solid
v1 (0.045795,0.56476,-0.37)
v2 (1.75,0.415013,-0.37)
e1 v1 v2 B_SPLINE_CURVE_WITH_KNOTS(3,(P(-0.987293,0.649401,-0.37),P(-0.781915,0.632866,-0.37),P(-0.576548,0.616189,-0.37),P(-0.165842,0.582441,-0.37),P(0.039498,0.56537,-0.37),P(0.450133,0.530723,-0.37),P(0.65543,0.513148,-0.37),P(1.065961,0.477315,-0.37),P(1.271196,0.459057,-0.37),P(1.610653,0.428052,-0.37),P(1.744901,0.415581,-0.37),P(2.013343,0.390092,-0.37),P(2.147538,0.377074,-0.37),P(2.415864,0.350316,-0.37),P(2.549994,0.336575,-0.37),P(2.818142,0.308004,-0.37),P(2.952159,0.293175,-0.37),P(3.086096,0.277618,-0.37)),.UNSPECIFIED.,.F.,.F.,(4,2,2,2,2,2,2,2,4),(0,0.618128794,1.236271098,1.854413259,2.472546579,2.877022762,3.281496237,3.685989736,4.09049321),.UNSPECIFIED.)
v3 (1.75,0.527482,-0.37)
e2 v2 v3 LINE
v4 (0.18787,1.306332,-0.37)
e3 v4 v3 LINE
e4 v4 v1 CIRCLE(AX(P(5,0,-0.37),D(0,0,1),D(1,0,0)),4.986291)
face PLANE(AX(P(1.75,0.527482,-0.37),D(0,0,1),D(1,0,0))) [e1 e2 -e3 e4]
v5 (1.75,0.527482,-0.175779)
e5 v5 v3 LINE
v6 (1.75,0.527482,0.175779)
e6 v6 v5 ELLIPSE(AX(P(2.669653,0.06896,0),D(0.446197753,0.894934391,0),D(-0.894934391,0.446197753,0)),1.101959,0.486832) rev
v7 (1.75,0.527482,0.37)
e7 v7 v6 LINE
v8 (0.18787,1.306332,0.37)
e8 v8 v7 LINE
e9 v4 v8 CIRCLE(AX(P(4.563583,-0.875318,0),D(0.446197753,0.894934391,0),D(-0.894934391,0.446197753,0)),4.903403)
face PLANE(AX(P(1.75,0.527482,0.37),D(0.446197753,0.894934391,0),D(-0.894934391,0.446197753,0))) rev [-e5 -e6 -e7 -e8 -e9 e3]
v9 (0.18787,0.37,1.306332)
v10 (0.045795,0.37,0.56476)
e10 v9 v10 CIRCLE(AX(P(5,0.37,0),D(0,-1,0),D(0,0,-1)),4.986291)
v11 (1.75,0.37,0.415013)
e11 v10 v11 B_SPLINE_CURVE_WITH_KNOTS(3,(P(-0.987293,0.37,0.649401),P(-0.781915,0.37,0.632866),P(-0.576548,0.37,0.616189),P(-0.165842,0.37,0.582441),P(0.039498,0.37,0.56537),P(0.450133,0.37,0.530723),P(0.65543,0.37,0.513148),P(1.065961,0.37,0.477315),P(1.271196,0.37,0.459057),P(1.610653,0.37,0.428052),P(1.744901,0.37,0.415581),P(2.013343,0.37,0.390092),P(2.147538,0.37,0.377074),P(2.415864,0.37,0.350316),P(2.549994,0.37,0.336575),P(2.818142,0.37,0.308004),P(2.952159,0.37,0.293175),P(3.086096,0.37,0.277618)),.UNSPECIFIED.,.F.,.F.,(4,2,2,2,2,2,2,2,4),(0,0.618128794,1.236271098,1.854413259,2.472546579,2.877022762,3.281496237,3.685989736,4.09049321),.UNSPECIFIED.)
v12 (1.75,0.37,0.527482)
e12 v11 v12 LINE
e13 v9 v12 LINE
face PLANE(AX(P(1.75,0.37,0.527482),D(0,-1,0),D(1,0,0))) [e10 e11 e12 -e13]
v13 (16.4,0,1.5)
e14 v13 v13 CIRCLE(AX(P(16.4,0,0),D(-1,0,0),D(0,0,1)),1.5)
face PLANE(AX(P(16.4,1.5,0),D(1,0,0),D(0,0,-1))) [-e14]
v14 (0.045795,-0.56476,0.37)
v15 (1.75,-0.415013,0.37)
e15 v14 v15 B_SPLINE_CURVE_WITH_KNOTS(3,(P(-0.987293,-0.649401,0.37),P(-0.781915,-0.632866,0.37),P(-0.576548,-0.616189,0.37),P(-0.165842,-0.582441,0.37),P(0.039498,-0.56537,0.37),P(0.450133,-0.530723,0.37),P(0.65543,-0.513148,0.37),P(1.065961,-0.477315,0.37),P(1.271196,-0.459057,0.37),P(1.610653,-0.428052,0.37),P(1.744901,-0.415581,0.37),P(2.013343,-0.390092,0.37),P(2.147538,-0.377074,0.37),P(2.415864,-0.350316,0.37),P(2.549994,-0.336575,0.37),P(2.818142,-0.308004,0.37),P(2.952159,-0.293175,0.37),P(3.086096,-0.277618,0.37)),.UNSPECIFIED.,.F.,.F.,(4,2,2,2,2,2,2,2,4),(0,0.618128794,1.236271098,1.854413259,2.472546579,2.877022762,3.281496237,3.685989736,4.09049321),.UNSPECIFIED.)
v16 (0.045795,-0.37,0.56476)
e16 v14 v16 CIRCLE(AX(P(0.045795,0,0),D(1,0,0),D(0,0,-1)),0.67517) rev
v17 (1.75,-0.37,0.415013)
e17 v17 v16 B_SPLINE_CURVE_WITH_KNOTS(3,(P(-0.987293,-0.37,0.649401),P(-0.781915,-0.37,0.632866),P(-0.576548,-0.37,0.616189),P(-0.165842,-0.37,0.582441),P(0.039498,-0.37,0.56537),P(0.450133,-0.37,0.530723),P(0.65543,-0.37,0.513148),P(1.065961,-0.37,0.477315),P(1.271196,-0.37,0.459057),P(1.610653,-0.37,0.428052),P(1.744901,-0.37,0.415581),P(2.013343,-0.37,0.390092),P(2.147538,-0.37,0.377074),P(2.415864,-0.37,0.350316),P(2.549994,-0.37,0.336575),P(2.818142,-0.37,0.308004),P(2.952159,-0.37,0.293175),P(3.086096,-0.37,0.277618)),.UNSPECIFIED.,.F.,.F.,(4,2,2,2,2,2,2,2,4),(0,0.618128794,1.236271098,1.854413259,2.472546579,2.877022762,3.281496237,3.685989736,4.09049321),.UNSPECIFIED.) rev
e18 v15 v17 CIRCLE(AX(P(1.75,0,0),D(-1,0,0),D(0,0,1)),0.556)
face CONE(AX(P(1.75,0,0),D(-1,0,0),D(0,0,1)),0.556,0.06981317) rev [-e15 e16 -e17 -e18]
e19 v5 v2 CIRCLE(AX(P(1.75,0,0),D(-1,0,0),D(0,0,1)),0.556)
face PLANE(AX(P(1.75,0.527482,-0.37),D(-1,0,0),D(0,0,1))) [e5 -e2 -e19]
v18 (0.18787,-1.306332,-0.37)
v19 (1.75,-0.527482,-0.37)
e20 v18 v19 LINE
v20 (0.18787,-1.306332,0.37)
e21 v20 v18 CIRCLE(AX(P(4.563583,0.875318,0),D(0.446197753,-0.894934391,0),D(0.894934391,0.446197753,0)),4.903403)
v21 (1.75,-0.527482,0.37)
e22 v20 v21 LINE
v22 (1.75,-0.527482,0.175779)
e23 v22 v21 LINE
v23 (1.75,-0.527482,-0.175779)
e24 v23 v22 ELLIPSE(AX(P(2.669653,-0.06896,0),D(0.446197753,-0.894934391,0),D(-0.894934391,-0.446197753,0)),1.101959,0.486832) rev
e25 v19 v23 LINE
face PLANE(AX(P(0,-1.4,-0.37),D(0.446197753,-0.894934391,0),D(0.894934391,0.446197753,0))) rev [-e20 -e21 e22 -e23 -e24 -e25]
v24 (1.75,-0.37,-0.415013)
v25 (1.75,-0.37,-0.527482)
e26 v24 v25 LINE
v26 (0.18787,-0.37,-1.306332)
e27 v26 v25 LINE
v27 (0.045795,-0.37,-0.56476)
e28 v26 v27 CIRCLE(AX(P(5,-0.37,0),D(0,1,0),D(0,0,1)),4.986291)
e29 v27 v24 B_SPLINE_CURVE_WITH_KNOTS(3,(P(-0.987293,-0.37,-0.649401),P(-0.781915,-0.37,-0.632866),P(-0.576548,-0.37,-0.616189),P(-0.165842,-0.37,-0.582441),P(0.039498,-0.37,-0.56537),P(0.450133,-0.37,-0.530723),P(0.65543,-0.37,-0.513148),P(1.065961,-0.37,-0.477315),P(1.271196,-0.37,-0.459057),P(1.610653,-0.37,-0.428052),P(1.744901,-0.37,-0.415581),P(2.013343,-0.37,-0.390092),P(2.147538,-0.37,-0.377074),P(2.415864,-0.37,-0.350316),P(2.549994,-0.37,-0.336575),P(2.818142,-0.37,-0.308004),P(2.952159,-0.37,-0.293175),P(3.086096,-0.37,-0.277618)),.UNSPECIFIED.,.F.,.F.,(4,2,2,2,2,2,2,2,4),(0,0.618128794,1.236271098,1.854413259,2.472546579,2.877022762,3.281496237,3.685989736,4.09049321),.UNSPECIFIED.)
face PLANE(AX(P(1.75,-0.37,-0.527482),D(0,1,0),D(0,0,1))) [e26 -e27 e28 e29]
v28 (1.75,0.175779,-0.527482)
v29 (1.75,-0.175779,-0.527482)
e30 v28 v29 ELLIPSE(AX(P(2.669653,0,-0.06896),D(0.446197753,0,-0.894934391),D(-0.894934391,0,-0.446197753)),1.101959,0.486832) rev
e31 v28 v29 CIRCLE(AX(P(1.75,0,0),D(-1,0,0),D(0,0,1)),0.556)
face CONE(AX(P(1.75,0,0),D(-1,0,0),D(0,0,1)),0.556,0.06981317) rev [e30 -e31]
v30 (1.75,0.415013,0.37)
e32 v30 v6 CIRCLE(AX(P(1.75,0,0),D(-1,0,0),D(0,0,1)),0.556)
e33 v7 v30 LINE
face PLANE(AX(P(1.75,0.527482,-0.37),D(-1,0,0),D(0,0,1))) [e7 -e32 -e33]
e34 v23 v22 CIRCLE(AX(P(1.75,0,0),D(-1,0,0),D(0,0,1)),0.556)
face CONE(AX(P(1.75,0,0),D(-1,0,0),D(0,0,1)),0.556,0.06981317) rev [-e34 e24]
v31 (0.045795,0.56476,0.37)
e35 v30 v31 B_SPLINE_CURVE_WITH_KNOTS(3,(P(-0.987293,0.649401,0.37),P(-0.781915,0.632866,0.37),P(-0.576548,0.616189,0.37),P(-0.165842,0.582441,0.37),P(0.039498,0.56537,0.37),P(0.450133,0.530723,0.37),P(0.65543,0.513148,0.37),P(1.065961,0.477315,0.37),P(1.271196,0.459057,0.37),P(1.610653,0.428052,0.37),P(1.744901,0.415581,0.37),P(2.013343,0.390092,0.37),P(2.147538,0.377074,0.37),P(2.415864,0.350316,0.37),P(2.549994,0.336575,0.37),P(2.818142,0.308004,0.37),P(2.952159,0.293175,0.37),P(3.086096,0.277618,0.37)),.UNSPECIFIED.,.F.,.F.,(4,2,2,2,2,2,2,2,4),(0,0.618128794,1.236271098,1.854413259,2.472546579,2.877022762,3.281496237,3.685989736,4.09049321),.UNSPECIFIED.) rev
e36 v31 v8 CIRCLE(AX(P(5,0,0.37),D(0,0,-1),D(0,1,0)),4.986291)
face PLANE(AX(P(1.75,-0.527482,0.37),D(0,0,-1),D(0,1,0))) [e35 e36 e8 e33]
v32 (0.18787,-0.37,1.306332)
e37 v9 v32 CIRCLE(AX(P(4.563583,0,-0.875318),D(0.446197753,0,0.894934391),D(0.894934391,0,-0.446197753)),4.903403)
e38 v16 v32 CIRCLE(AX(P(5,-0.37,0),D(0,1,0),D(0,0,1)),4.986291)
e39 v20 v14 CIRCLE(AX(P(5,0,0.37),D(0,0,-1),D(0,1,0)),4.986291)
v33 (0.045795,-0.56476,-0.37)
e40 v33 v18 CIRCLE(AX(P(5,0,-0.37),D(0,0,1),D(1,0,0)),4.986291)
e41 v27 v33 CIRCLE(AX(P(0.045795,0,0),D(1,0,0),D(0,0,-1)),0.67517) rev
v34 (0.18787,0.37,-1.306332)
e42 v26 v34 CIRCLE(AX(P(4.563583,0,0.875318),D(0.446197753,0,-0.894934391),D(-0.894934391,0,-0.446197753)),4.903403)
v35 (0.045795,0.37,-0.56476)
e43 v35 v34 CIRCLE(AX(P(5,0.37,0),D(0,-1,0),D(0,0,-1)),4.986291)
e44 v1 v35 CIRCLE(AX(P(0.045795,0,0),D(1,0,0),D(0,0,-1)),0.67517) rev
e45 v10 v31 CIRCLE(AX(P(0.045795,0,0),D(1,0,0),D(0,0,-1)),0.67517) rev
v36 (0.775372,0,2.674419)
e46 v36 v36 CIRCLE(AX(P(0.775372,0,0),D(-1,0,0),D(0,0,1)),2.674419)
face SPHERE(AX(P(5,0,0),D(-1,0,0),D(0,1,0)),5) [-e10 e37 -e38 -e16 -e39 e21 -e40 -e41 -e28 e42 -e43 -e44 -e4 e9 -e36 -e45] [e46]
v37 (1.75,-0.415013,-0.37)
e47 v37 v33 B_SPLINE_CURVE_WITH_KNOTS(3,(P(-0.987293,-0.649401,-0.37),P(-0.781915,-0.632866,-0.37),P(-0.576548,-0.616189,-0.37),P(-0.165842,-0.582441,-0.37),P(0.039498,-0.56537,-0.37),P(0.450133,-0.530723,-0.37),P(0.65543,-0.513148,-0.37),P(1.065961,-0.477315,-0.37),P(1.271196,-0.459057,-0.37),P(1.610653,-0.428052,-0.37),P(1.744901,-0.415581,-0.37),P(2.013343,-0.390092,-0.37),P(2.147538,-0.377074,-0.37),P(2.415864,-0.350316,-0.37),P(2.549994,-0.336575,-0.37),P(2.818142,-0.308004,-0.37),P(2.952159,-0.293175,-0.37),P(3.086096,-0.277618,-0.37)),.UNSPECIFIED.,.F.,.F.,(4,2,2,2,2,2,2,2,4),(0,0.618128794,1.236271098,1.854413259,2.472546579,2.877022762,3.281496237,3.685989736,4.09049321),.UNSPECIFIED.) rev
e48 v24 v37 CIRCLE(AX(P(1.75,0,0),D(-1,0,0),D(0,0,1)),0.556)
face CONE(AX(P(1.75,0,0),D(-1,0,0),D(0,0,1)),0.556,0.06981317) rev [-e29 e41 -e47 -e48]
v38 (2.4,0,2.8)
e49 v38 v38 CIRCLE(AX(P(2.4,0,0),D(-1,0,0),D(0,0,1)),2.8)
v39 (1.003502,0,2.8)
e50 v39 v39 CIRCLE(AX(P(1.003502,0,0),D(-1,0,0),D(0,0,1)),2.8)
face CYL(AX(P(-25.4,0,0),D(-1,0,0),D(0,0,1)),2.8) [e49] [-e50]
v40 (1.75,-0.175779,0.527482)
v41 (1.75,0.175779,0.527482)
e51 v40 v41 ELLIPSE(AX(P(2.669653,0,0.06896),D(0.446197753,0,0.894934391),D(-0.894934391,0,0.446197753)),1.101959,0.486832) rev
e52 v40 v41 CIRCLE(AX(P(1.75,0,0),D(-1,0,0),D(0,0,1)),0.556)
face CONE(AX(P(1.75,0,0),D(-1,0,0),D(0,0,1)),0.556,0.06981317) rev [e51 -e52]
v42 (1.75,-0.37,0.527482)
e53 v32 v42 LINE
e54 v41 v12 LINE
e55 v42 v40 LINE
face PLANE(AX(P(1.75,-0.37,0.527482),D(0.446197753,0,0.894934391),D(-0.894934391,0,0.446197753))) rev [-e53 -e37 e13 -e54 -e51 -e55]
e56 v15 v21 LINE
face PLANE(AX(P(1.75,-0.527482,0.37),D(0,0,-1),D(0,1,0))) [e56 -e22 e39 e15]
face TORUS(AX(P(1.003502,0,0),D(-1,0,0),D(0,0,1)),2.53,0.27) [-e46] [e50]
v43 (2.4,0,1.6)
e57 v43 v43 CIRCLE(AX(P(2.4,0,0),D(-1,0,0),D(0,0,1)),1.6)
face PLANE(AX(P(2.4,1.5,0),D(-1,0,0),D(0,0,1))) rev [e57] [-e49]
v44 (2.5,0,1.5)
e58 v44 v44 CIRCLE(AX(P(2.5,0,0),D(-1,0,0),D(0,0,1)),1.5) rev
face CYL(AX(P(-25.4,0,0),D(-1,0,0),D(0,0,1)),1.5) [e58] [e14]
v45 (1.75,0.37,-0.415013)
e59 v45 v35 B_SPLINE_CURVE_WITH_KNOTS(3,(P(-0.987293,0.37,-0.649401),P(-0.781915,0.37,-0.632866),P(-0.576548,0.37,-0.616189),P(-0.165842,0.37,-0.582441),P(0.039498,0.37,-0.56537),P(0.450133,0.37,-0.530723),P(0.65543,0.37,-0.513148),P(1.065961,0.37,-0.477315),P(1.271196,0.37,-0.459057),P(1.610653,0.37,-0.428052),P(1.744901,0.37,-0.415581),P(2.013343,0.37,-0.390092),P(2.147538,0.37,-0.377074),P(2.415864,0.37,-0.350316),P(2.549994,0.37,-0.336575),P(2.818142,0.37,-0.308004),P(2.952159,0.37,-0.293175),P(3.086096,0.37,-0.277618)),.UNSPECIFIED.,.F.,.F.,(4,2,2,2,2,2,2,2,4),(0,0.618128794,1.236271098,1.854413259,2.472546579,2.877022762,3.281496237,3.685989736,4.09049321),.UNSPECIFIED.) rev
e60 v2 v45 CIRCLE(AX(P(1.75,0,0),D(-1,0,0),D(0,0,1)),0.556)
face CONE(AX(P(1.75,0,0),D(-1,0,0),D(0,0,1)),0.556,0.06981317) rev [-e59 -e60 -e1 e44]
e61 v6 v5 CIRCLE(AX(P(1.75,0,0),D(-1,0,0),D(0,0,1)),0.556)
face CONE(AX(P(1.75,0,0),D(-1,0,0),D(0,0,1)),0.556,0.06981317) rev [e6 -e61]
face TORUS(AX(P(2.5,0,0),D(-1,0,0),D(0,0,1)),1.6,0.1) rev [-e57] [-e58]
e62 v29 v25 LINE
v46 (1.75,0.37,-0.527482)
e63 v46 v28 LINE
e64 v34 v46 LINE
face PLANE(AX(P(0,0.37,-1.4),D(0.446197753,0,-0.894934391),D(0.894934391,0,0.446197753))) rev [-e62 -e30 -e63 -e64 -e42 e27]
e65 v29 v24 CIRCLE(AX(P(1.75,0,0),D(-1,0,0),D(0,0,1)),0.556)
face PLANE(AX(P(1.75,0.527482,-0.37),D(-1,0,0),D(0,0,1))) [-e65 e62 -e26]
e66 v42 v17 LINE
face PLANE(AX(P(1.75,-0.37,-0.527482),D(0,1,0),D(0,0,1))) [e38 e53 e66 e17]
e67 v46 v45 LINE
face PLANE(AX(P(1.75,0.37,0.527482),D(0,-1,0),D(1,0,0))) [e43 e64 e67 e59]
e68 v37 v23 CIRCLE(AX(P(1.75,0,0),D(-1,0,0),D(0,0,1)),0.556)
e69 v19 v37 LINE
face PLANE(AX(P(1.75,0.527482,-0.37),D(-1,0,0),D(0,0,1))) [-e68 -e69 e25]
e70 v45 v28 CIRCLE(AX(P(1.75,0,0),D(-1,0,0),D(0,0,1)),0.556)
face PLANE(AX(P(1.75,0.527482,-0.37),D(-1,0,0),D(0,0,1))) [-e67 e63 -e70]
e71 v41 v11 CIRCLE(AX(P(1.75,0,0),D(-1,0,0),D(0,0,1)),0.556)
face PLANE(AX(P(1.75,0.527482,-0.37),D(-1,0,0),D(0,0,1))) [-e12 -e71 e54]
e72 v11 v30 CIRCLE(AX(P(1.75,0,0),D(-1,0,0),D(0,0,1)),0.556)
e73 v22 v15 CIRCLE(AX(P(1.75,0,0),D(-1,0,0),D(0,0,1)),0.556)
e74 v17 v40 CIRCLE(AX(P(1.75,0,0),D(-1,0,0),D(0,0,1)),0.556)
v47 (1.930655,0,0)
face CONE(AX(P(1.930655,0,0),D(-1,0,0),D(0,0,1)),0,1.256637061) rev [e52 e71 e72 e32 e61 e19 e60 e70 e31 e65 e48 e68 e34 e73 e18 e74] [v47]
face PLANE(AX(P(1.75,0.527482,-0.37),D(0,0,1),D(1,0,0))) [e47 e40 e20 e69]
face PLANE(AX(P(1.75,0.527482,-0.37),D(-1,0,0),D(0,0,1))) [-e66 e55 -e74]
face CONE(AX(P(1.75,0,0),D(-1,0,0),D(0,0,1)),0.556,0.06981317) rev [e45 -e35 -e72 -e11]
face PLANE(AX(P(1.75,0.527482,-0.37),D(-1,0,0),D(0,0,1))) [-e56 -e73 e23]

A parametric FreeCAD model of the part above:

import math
import FreeCAD as App
import Part
import Sketcher
from FreeCAD import Vector
Q = App.Units.Quantity


def edges_at(feature, points):
    """Names of the edges that pass closest to the given points."""
    edges = feature.Shape.Edges
    near = lambda p: min(range(len(edges)), key=lambda i: edges[i].distToShape(Part.Vertex(*p))[0])
    return sorted({f"Edge{near(p) + 1}" for p in points})


def add_polygon(sketch, points):
    """Adds a closed chain of lines whose ends are joined by coincident constraints."""
    first, n = sketch.GeometryCount, len(points)
    for a, b in zip(points, points[1:] + points[:1]):
        sketch.addGeometry(Part.LineSegment(App.Vector(*a, 0), App.Vector(*b, 0)), False)
    for i in range(n):
        sketch.addConstraint(Sketcher.Constraint("Coincident", first + i, 2, first + (i + 1) % n, 1))

doc = App.newDocument("Part")
body = doc.addObject("PartDesign::Body", "Body")

sketch1 = body.newObject("Sketcher::SketchObject", "Sketch")
sketch1.AttachmentSupport = (doc.getObject("XY_Plane"), [""])
sketch1.MapMode = "FlatFace"
sketch1.addGeometry([
    Part.LineSegment(Vector(2.4, 1.5, 0), Vector(2.4, 2.8, 0)),
    Part.LineSegment(Vector(2.4, 2.8, 0), Vector(1, 2.8, 0)),
    Part.ArcOfCircle(Part.Circle(Vector(1, 2.53, 0), Vector(0, 0, 1), 0.27), math.radians(90), math.radians(148)),
    Part.ArcOfCircle(Part.Circle(Vector(5, 0, 0), Vector(0, 0, 1), 5), math.radians(148), math.radians(180)),
    Part.LineSegment(Vector(0, 0, 0), Vector(16.4, 0, 0)),
    Part.LineSegment(Vector(16.4, 0, 0), Vector(16.4, 1.5, 0)),
    Part.LineSegment(Vector(16.4, 1.5, 0), Vector(2.4, 1.5, 0)),
], False)
sketch1.addConstraint([
    Sketcher.Constraint("Coincident", 0, 2, 1, 1),
    Sketcher.Constraint("Tangent", 1, 2, 2, 1),
    Sketcher.Constraint("Tangent", 2, 2, 3, 1),
    Sketcher.Constraint("Coincident", 3, 2, 4, 1),
    Sketcher.Constraint("Coincident", 4, 2, 5, 1),
    Sketcher.Constraint("Coincident", 5, 2, 6, 1),
    Sketcher.Constraint("Coincident", 6, 2, 0, 1),
    Sketcher.Constraint("Vertical", 0),
    Sketcher.Constraint("Horizontal", 1),
    Sketcher.Constraint("Horizontal", 4),
    Sketcher.Constraint("Vertical", 5),
    Sketcher.Constraint("Horizontal", 6),
    Sketcher.Constraint("Coincident", 3, 2, -1, 1),
    Sketcher.Constraint("PointOnObject", 3, 3, -1),
    Sketcher.Constraint("Radius", 3, 5.0),
    Sketcher.Constraint("DistanceX", 6, 2, 6, 1, 14.0),
    Sketcher.Constraint("Radius", 2, 0.27),
    Sketcher.Constraint("DistanceX", 4, 1, 4, 2, 16.4),
    Sketcher.Constraint("DistanceY", 0, 1, 0, 2, 1.3),
    Sketcher.Constraint("DistanceY", 5, 1, 5, 2, 1.5),
])
revolution = body.newObject("PartDesign::Revolution", "Revolution")
revolution.Profile = sketch1
revolution.ReferenceAxis = (sketch1, ["H_Axis"])
revolution.Angle = 360
doc.recompute()

fillet = body.newObject("PartDesign::Fillet", "Fillet")
fillet.Base = (revolution, edges_at(revolution, [(2.4, -1.5, 0)]))
fillet.Radius = 0.1

sketch2 = body.newObject("Sketcher::SketchObject", "Sketch001")
sketch2.AttachmentSupport = (doc.getObject("YZ_Plane"), [""])
sketch2.MapMode = "FlatFace"
add_polygon(sketch2, [(1.4, 0.4), (-1.4, 0.4), (-1.4, -0.4), (1.4, -0.4)])
sketch2.addConstraint([
    Sketcher.Constraint("Horizontal", 0),
    Sketcher.Constraint("Vertical", 1),
    Sketcher.Constraint("Horizontal", 2),
    Sketcher.Constraint("Vertical", 3),
    Sketcher.Constraint("Symmetric", 0, 2, 2, 2, -1, 1),
    Sketcher.Constraint("DistanceX", 0, 2, 0, 1, 2.8),
    Sketcher.Constraint("DistanceY", 1, 2, 1, 1, 0.74),
])

sketch3 = body.newObject("Sketcher::SketchObject", "Sketch002")
sketch3.AttachmentSupport = (doc.getObject("YZ_Plane"), [""])
sketch3.MapMode = "FlatFace"
sketch3.AttachmentOffset = App.Placement(Vector(0, 0, 1.75), App.Rotation())
add_polygon(sketch3, [(0.5, 0.4), (-0.5, 0.4), (-0.5, -0.4), (0.5, -0.4)])
sketch3.addConstraint([
    Sketcher.Constraint("Horizontal", 0),
    Sketcher.Constraint("Vertical", 1),
    Sketcher.Constraint("Horizontal", 2),
    Sketcher.Constraint("Vertical", 3),
    Sketcher.Constraint("Symmetric", 0, 2, 2, 2, -1, 1),
    Sketcher.Constraint("DistanceY", 1, 2, 1, 1, 0.74),
    Sketcher.Constraint("DistanceX", 0, 2, 0, 1, 1.054965),
])

subtractiveloft = body.newObject("PartDesign::SubtractiveLoft", "SubtractiveLoft")
subtractiveloft.Profile = sketch2
subtractiveloft.Sections = [sketch3]
doc.recompute()

polarpattern = body.newObject("PartDesign::PolarPattern", "PolarPattern")
polarpattern.Originals = [subtractiveloft]
polarpattern.Axis = (doc.getObject("X_Axis"), [""])
polarpattern.Angle = 90
polarpattern.Occurrences = 2
body.Tip = polarpattern

sketch4 = body.newObject("Sketcher::SketchObject", "Sketch003")
sketch4.AttachmentSupport = (doc.getObject("XY_Plane"), [""])
sketch4.MapMode = "FlatFace"
add_polygon(sketch4, [(0, 0.7), (0, 0), (1.9, 0), (1.8, 0.6)])
sketch4.addConstraint([
    Sketcher.Constraint("Vertical", 0),
    Sketcher.Constraint("Horizontal", 1),
    Sketcher.Constraint("Coincident", 0, 2, -1, 1),
    Sketcher.Constraint("Angle", 2, Q("108 deg")),
    Sketcher.Constraint("Angle", 3, Q("176 deg")),
    Sketcher.Constraint("DistanceX", -1, 1, 2, 2, 1.75),
    Sketcher.Constraint("DistanceY", -1, 1, 2, 2, 0.556),
])
groove = body.newObject("PartDesign::Groove", "Groove")
groove.Profile = sketch4
groove.ReferenceAxis = (sketch4, ["H_Axis"])
groove.Angle = 360

doc.recompute()
